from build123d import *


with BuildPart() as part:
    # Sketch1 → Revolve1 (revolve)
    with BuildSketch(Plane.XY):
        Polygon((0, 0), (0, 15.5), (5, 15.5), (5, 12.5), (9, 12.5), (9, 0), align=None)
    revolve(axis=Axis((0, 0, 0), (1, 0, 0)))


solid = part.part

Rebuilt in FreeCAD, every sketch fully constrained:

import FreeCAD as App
import Part
import Sketcher
Q = App.Units.Quantity


def add_polygon(sketch, points):
    """Adds a closed chain of lines whose ends are joined by coincident constraints."""
    first, n = sketch.GeometryCount, len(points)
    for a, b in zip(points, points[1:] + points[:1]):
        sketch.addGeometry(Part.LineSegment(App.Vector(*a, 0), App.Vector(*b, 0)), False)
    for i in range(n):
        sketch.addConstraint(Sketcher.Constraint("Coincident", first + i, 2, first + (i + 1) % n, 1))

doc = App.newDocument("Part")
body = doc.addObject("PartDesign::Body", "Body")

sketch1 = body.newObject("Sketcher::SketchObject", "Sketch")
sketch1.AttachmentSupport = (doc.getObject("XY_Plane"), [""])
sketch1.MapMode = "FlatFace"
add_polygon(sketch1, [(0, 15.5), (0, 0), (9, 0), (9, 12.5), (5, 12.5), (5, 15.5)])
sketch1.addConstraint(Sketcher.Constraint("Vertical", 0))
sketch1.addConstraint(Sketcher.Constraint("Horizontal", 1))
sketch1.addConstraint(Sketcher.Constraint("Vertical", 2))
sketch1.addConstraint(Sketcher.Constraint("Horizontal", 3))
sketch1.addConstraint(Sketcher.Constraint("Vertical", 4))
sketch1.addConstraint(Sketcher.Constraint("Horizontal", 5))
sketch1.addConstraint(Sketcher.Constraint("Coincident", 0, 2, -1, 1))
sketch1.addConstraint(Sketcher.Constraint("DistanceX", 1, 1, 1, 2, Q("9 mm")))
sketch1.addConstraint(Sketcher.Constraint("DistanceX", 3, 2, 3, 1, Q("4 mm")))
sketch1.addConstraint(Sketcher.Constraint("DistanceY", 4, 1, 4, 2, Q("3 mm")))
sketch1.addConstraint(Sketcher.Constraint("DistanceY", 0, 2, 0, 1, Q("15.5 mm")))
revolution = body.newObject("PartDesign::Revolution", "Revolution")
revolution.Profile = sketch1
revolution.ReferenceAxis = (sketch1, ["H_Axis"])
revolution.Angle = 360

doc.recompute()
